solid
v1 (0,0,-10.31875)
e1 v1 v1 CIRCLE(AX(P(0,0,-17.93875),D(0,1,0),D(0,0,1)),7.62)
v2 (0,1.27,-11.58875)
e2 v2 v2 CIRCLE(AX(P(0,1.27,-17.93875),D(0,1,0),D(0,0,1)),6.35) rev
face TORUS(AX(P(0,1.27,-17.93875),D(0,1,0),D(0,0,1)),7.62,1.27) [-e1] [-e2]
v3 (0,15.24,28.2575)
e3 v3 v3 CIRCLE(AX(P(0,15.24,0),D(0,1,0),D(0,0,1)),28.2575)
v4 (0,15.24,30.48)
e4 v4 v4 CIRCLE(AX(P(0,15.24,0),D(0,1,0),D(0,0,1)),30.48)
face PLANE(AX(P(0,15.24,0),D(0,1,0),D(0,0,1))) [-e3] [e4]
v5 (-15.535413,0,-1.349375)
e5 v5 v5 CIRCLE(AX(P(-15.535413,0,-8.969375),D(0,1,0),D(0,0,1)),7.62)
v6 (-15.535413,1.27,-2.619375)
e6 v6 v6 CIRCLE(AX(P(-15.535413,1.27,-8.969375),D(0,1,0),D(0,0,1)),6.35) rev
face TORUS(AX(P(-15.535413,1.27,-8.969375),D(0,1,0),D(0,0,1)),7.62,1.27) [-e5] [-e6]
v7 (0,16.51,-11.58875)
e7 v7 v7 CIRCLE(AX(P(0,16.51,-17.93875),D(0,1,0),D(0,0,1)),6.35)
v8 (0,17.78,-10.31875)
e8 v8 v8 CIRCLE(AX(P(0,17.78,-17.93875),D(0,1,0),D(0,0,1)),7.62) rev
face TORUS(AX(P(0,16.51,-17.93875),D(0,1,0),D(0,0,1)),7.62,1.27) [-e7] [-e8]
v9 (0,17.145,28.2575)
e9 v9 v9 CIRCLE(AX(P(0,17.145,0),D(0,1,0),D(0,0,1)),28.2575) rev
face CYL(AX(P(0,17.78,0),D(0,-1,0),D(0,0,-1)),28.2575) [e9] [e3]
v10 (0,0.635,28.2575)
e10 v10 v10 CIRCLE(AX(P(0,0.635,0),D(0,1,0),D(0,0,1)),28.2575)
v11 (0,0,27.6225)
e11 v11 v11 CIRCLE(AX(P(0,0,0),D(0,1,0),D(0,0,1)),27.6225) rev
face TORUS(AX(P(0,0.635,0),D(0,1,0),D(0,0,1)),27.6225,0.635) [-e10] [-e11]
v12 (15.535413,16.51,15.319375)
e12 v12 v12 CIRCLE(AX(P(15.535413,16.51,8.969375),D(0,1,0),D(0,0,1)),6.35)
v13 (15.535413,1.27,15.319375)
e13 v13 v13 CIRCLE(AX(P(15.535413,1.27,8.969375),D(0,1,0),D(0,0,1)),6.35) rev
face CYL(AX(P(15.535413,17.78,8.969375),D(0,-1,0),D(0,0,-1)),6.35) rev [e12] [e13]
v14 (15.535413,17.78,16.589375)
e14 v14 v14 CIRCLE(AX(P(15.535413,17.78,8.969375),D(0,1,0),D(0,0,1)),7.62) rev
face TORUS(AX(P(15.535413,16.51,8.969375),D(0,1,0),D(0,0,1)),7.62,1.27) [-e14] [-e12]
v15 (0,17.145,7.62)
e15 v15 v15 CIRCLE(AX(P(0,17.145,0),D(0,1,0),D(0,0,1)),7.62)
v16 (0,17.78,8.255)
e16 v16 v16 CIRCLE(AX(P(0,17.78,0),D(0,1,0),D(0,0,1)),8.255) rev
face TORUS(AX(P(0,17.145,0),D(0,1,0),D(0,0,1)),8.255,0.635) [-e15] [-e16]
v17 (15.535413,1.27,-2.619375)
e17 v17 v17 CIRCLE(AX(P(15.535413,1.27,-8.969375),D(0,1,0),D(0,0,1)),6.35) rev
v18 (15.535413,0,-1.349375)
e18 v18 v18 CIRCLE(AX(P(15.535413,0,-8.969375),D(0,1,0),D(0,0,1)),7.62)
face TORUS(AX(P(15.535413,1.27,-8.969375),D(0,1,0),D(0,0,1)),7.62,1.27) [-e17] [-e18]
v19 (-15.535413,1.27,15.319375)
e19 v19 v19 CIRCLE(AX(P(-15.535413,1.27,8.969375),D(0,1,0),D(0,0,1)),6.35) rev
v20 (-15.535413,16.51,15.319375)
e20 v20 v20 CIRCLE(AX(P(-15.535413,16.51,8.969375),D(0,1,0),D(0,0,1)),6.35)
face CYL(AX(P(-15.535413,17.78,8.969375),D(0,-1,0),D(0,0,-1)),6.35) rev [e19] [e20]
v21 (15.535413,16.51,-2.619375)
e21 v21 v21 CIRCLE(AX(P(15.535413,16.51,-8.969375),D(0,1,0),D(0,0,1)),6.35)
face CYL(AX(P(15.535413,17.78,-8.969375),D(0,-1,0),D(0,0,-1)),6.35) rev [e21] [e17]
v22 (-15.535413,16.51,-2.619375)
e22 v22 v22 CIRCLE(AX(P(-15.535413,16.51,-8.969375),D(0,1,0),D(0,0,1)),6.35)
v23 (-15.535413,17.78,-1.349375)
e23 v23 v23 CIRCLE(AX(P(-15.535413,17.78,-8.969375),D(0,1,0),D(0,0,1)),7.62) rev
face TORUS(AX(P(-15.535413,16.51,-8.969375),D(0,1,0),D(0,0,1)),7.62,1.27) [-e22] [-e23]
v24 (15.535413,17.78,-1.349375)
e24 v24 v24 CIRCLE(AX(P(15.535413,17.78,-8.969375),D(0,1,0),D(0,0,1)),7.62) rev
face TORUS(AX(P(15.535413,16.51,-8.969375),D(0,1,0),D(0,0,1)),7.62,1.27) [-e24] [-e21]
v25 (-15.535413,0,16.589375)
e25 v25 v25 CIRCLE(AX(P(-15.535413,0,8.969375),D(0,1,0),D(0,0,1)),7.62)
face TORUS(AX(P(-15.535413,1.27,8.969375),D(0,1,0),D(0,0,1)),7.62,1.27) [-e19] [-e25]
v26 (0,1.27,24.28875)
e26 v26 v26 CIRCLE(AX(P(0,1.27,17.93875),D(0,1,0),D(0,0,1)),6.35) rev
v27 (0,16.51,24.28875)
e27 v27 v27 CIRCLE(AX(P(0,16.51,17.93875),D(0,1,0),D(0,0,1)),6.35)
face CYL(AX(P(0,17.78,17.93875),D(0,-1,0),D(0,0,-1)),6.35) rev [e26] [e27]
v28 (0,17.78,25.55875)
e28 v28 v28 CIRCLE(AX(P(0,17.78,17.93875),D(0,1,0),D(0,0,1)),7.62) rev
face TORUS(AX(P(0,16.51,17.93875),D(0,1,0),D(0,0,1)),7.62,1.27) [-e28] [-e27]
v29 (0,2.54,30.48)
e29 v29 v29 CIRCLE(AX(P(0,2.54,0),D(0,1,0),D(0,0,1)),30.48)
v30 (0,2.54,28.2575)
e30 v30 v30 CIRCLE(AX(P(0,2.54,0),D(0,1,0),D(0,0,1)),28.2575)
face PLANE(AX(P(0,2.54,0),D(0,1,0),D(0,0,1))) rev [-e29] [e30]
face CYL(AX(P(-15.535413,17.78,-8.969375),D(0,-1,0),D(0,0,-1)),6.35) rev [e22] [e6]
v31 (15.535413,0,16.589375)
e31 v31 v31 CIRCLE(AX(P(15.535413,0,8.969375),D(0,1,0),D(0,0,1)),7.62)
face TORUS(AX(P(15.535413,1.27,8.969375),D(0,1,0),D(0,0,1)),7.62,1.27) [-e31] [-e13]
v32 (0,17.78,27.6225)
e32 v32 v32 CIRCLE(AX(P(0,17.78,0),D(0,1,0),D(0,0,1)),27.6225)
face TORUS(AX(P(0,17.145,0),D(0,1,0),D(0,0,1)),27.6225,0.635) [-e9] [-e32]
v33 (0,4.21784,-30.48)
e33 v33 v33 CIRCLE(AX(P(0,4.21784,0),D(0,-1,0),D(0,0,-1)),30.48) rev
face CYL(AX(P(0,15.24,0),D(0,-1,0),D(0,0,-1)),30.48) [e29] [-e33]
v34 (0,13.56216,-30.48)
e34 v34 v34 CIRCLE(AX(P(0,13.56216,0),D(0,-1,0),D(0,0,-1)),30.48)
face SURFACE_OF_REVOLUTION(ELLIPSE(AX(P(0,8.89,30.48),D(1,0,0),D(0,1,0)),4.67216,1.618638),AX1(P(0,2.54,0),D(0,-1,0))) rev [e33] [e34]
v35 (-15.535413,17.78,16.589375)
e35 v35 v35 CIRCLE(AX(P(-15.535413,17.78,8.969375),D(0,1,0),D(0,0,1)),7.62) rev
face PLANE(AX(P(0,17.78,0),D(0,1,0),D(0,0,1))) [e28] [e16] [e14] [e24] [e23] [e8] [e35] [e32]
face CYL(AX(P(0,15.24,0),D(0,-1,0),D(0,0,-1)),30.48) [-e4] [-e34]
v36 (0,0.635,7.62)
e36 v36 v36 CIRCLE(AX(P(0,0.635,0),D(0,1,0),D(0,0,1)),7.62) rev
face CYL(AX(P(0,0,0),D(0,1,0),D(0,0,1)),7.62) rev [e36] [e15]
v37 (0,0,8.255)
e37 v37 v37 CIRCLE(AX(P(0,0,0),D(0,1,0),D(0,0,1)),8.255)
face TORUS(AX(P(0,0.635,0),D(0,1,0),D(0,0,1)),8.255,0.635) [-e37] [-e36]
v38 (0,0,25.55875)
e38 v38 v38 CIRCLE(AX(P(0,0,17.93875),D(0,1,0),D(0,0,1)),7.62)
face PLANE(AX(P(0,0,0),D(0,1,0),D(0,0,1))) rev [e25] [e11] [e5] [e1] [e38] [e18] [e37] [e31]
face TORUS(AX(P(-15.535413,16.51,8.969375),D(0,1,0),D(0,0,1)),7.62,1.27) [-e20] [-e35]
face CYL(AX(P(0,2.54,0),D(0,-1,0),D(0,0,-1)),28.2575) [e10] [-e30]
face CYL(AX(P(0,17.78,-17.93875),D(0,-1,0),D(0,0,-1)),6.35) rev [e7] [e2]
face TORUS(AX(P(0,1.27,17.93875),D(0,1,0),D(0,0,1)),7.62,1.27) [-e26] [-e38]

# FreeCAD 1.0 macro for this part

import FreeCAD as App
import Part
import Sketcher

V = App.Vector
Q = App.Units.Quantity


def edges_at(feature, points):
    """Names of the edges that pass closest to the given points."""
    edges = feature.Shape.Edges
    near = lambda p: min(range(len(edges)), key=lambda i: edges[i].distToShape(Part.Vertex(*p))[0])
    return sorted({f"Edge{near(p) + 1}" for p in points})

doc = App.newDocument("Part")
body = doc.addObject("PartDesign::Body", "Body")

# Sketch on XZ plane
sketch1 = body.newObject("Sketcher::SketchObject", "Sketch")
sketch1.AttachmentSupport = (doc.getObject("XZ_Plane"), [""])
sketch1.MapMode = "FlatFace"
sketch1.addGeometry(Part.Circle(V(0, 0, 0), V(0, 0, 1), 28), False)
sketch1.addConstraint([
    Sketcher.Constraint("Coincident", 0, 3, -1, 1),
    Sketcher.Constraint("Diameter", 0, Q("2.225 in")),
])
pad1 = body.newObject("PartDesign::Pad", "Pad")
pad1.Profile = sketch1
pad1.Length = Q("0.1 in")
pad1.Reversed = True

# Sketch on XZ plane
sketch2 = body.newObject("Sketcher::SketchObject", "Sketch001")
sketch2.AttachmentSupport = (doc.getObject("XZ_Plane"), [""])
sketch2.MapMode = "FlatFace"
sketch2.AttachmentOffset = App.Placement(V(0, 0, -0.1 * 25.4), App.Rotation())
sketch2.addGeometry(Part.Circle(V(0, 0, 0), V(0, 0, 1), 30), False)
sketch2.addConstraint([
    Sketcher.Constraint("Coincident", 0, 3, -1, 1),
    Sketcher.Constraint("Diameter", 0, Q("2.4 in")),
])
pad2 = body.newObject("PartDesign::Pad", "Pad001")
pad2.Profile = sketch2
pad2.Length = Q("0.5 in")
pad2.Reversed = True

# Sketch on XZ plane
sketch3 = body.newObject("Sketcher::SketchObject", "Sketch002")
sketch3.AttachmentSupport = (doc.getObject("XZ_Plane"), [""])
sketch3.MapMode = "FlatFace"
sketch3.AttachmentOffset = App.Placement(V(0, 0, -0.6 * 25.4), App.Rotation())
sketch3.addGeometry(Part.Circle(V(0, 0, 0), V(0, 0, 1), 28), False)
sketch3.addConstraint([
    Sketcher.Constraint("Coincident", 0, 3, -1, 1),
    Sketcher.Constraint("Diameter", 0, Q("2.225 in")),
])
pad3 = body.newObject("PartDesign::Pad", "Pad002")
pad3.Profile = sketch3
pad3.Length = Q("0.1 in")
pad3.Reversed = True

# Sketch on XZ plane
sketch4 = body.newObject("Sketcher::SketchObject", "Sketch003")
sketch4.AttachmentSupport = (doc.getObject("XZ_Plane"), [""])
sketch4.MapMode = "FlatFace"
sketch4.AttachmentOffset = App.Placement(V(0, 0, -0.7 * 25.4), App.Rotation())
sketch4.addGeometry(Part.Circle(V(0, 0, 0), V(0, 0, 1), 8), False)
sketch4.addConstraint([
    Sketcher.Constraint("Coincident", 0, 3, -1, 1),
    Sketcher.Constraint("Diameter", 0, Q("0.6 in")),
])
pocket1 = body.newObject("PartDesign::Pocket", "Pocket")
pocket1.Profile = sketch4
pocket1.Type = "ThroughAll"
pocket1.Reversed = True
doc.recompute()

fillet = body.newObject("PartDesign::Fillet", "Fillet")
fillet.Base = (pocket1, edges_at(pocket1, [
    (-28.258, 17.78, 0),
    (-7.62, 0, 0),
    (-7.62, 17.78, 0),
    (-28.258, 0, 0),
]))
fillet.Radius = Q("0.025 in")

# Sketch on XZ plane
sketch5 = body.newObject("Sketcher::SketchObject", "Sketch004")
sketch5.AttachmentSupport = (doc.getObject("XZ_Plane"), [""])
sketch5.MapMode = "FlatFace"
sketch5.addGeometry([
    Part.Circle(V(0, 18, 0), V(0, 0, 1), 6),  # 0
    Part.Circle(V(16, 9, 0), V(0, 0, 1), 6),  # 1
    Part.Circle(V(16, -9, 0), V(0, 0, 1), 6),  # 2
    Part.Circle(V(0, -18, 0), V(0, 0, 1), 6),  # 3
    Part.Circle(V(-16, -9, 0), V(0, 0, 1), 6),  # 4
    Part.Circle(V(-16, 9, 0), V(0, 0, 1), 6),  # 5
], False)
sketch5.addConstraint([
    Sketcher.Constraint("Equal", 0, 1),
    Sketcher.Constraint("Equal", 1, 2),
    Sketcher.Constraint("Equal", 2, 3),
    Sketcher.Constraint("Equal", 3, 4),
    Sketcher.Constraint("Equal", 4, 5),
    Sketcher.Constraint("Symmetric", 0, 3, 3, 3, -1, 1),
    Sketcher.Constraint("Symmetric", 1, 3, 4, 3, -1, 1),
    Sketcher.Constraint("Symmetric", 2, 3, 5, 3, -1, 1),
    Sketcher.Constraint("Symmetric", 2, 3, 4, 3, -2),
    Sketcher.Constraint("PointOnObject", 0, 3, -2),
    Sketcher.Constraint("Diameter", 0, Q("0.5 in")),
    Sketcher.Constraint("DistanceY", 3, 3, 0, 3, Q("1.4125 in")),
    Sketcher.Constraint("DistanceY", 2, 3, 1, 3, Q("17.93875 mm")),
    Sketcher.Constraint("DistanceX", -1, 1, 1, 3, Q("15.535413 mm")),
])
pocket2 = body.newObject("PartDesign::Pocket", "Pocket001")
pocket2.Profile = sketch5
pocket2.Type = "ThroughAll"
doc.recompute()

fillet2 = body.newObject("PartDesign::Fillet", "Fillet001")
fillet2.Base = (pocket2, edges_at(pocket2, [
    (9.185, 17.78, 8.969),
    (9.185, 0, 8.969),
    (9.185, 17.78, -8.969),
    (9.185, 0, -8.969),
    (-6.35, 17.78, -17.939),
    (-6.35, 0, -17.939),
    (-21.885, 17.78, -8.969),
    (-21.885, 0, -8.969),
    (-21.885, 17.78, 8.969),
    (-21.885, 0, 8.969),
    (-6.35, 17.78, 17.939),
    (-6.35, 0, 17.939),
]))
fillet2.Radius = Q("0.05 in")

# Sketch on YZ plane
sketch6 = body.newObject("Sketcher::SketchObject", "Sketch005")
sketch6.AttachmentSupport = (doc.getObject("YZ_Plane"), [""])
sketch6.MapMode = "FlatFace"
sketch6.addGeometry(Part.Ellipse(V(13.56216, 30.48, 0), V(8.89, 32.098638, 0), V(8.89, 30.48, 0)), False)
sketch6.addConstraint(Sketcher.Constraint("Block", 0))
groove = body.newObject("PartDesign::Groove", "Groove")
groove.Profile = sketch6
groove.ReferenceAxis = (sketch6, ["H_Axis"])
groove.Angle = 360

doc.recompute()
